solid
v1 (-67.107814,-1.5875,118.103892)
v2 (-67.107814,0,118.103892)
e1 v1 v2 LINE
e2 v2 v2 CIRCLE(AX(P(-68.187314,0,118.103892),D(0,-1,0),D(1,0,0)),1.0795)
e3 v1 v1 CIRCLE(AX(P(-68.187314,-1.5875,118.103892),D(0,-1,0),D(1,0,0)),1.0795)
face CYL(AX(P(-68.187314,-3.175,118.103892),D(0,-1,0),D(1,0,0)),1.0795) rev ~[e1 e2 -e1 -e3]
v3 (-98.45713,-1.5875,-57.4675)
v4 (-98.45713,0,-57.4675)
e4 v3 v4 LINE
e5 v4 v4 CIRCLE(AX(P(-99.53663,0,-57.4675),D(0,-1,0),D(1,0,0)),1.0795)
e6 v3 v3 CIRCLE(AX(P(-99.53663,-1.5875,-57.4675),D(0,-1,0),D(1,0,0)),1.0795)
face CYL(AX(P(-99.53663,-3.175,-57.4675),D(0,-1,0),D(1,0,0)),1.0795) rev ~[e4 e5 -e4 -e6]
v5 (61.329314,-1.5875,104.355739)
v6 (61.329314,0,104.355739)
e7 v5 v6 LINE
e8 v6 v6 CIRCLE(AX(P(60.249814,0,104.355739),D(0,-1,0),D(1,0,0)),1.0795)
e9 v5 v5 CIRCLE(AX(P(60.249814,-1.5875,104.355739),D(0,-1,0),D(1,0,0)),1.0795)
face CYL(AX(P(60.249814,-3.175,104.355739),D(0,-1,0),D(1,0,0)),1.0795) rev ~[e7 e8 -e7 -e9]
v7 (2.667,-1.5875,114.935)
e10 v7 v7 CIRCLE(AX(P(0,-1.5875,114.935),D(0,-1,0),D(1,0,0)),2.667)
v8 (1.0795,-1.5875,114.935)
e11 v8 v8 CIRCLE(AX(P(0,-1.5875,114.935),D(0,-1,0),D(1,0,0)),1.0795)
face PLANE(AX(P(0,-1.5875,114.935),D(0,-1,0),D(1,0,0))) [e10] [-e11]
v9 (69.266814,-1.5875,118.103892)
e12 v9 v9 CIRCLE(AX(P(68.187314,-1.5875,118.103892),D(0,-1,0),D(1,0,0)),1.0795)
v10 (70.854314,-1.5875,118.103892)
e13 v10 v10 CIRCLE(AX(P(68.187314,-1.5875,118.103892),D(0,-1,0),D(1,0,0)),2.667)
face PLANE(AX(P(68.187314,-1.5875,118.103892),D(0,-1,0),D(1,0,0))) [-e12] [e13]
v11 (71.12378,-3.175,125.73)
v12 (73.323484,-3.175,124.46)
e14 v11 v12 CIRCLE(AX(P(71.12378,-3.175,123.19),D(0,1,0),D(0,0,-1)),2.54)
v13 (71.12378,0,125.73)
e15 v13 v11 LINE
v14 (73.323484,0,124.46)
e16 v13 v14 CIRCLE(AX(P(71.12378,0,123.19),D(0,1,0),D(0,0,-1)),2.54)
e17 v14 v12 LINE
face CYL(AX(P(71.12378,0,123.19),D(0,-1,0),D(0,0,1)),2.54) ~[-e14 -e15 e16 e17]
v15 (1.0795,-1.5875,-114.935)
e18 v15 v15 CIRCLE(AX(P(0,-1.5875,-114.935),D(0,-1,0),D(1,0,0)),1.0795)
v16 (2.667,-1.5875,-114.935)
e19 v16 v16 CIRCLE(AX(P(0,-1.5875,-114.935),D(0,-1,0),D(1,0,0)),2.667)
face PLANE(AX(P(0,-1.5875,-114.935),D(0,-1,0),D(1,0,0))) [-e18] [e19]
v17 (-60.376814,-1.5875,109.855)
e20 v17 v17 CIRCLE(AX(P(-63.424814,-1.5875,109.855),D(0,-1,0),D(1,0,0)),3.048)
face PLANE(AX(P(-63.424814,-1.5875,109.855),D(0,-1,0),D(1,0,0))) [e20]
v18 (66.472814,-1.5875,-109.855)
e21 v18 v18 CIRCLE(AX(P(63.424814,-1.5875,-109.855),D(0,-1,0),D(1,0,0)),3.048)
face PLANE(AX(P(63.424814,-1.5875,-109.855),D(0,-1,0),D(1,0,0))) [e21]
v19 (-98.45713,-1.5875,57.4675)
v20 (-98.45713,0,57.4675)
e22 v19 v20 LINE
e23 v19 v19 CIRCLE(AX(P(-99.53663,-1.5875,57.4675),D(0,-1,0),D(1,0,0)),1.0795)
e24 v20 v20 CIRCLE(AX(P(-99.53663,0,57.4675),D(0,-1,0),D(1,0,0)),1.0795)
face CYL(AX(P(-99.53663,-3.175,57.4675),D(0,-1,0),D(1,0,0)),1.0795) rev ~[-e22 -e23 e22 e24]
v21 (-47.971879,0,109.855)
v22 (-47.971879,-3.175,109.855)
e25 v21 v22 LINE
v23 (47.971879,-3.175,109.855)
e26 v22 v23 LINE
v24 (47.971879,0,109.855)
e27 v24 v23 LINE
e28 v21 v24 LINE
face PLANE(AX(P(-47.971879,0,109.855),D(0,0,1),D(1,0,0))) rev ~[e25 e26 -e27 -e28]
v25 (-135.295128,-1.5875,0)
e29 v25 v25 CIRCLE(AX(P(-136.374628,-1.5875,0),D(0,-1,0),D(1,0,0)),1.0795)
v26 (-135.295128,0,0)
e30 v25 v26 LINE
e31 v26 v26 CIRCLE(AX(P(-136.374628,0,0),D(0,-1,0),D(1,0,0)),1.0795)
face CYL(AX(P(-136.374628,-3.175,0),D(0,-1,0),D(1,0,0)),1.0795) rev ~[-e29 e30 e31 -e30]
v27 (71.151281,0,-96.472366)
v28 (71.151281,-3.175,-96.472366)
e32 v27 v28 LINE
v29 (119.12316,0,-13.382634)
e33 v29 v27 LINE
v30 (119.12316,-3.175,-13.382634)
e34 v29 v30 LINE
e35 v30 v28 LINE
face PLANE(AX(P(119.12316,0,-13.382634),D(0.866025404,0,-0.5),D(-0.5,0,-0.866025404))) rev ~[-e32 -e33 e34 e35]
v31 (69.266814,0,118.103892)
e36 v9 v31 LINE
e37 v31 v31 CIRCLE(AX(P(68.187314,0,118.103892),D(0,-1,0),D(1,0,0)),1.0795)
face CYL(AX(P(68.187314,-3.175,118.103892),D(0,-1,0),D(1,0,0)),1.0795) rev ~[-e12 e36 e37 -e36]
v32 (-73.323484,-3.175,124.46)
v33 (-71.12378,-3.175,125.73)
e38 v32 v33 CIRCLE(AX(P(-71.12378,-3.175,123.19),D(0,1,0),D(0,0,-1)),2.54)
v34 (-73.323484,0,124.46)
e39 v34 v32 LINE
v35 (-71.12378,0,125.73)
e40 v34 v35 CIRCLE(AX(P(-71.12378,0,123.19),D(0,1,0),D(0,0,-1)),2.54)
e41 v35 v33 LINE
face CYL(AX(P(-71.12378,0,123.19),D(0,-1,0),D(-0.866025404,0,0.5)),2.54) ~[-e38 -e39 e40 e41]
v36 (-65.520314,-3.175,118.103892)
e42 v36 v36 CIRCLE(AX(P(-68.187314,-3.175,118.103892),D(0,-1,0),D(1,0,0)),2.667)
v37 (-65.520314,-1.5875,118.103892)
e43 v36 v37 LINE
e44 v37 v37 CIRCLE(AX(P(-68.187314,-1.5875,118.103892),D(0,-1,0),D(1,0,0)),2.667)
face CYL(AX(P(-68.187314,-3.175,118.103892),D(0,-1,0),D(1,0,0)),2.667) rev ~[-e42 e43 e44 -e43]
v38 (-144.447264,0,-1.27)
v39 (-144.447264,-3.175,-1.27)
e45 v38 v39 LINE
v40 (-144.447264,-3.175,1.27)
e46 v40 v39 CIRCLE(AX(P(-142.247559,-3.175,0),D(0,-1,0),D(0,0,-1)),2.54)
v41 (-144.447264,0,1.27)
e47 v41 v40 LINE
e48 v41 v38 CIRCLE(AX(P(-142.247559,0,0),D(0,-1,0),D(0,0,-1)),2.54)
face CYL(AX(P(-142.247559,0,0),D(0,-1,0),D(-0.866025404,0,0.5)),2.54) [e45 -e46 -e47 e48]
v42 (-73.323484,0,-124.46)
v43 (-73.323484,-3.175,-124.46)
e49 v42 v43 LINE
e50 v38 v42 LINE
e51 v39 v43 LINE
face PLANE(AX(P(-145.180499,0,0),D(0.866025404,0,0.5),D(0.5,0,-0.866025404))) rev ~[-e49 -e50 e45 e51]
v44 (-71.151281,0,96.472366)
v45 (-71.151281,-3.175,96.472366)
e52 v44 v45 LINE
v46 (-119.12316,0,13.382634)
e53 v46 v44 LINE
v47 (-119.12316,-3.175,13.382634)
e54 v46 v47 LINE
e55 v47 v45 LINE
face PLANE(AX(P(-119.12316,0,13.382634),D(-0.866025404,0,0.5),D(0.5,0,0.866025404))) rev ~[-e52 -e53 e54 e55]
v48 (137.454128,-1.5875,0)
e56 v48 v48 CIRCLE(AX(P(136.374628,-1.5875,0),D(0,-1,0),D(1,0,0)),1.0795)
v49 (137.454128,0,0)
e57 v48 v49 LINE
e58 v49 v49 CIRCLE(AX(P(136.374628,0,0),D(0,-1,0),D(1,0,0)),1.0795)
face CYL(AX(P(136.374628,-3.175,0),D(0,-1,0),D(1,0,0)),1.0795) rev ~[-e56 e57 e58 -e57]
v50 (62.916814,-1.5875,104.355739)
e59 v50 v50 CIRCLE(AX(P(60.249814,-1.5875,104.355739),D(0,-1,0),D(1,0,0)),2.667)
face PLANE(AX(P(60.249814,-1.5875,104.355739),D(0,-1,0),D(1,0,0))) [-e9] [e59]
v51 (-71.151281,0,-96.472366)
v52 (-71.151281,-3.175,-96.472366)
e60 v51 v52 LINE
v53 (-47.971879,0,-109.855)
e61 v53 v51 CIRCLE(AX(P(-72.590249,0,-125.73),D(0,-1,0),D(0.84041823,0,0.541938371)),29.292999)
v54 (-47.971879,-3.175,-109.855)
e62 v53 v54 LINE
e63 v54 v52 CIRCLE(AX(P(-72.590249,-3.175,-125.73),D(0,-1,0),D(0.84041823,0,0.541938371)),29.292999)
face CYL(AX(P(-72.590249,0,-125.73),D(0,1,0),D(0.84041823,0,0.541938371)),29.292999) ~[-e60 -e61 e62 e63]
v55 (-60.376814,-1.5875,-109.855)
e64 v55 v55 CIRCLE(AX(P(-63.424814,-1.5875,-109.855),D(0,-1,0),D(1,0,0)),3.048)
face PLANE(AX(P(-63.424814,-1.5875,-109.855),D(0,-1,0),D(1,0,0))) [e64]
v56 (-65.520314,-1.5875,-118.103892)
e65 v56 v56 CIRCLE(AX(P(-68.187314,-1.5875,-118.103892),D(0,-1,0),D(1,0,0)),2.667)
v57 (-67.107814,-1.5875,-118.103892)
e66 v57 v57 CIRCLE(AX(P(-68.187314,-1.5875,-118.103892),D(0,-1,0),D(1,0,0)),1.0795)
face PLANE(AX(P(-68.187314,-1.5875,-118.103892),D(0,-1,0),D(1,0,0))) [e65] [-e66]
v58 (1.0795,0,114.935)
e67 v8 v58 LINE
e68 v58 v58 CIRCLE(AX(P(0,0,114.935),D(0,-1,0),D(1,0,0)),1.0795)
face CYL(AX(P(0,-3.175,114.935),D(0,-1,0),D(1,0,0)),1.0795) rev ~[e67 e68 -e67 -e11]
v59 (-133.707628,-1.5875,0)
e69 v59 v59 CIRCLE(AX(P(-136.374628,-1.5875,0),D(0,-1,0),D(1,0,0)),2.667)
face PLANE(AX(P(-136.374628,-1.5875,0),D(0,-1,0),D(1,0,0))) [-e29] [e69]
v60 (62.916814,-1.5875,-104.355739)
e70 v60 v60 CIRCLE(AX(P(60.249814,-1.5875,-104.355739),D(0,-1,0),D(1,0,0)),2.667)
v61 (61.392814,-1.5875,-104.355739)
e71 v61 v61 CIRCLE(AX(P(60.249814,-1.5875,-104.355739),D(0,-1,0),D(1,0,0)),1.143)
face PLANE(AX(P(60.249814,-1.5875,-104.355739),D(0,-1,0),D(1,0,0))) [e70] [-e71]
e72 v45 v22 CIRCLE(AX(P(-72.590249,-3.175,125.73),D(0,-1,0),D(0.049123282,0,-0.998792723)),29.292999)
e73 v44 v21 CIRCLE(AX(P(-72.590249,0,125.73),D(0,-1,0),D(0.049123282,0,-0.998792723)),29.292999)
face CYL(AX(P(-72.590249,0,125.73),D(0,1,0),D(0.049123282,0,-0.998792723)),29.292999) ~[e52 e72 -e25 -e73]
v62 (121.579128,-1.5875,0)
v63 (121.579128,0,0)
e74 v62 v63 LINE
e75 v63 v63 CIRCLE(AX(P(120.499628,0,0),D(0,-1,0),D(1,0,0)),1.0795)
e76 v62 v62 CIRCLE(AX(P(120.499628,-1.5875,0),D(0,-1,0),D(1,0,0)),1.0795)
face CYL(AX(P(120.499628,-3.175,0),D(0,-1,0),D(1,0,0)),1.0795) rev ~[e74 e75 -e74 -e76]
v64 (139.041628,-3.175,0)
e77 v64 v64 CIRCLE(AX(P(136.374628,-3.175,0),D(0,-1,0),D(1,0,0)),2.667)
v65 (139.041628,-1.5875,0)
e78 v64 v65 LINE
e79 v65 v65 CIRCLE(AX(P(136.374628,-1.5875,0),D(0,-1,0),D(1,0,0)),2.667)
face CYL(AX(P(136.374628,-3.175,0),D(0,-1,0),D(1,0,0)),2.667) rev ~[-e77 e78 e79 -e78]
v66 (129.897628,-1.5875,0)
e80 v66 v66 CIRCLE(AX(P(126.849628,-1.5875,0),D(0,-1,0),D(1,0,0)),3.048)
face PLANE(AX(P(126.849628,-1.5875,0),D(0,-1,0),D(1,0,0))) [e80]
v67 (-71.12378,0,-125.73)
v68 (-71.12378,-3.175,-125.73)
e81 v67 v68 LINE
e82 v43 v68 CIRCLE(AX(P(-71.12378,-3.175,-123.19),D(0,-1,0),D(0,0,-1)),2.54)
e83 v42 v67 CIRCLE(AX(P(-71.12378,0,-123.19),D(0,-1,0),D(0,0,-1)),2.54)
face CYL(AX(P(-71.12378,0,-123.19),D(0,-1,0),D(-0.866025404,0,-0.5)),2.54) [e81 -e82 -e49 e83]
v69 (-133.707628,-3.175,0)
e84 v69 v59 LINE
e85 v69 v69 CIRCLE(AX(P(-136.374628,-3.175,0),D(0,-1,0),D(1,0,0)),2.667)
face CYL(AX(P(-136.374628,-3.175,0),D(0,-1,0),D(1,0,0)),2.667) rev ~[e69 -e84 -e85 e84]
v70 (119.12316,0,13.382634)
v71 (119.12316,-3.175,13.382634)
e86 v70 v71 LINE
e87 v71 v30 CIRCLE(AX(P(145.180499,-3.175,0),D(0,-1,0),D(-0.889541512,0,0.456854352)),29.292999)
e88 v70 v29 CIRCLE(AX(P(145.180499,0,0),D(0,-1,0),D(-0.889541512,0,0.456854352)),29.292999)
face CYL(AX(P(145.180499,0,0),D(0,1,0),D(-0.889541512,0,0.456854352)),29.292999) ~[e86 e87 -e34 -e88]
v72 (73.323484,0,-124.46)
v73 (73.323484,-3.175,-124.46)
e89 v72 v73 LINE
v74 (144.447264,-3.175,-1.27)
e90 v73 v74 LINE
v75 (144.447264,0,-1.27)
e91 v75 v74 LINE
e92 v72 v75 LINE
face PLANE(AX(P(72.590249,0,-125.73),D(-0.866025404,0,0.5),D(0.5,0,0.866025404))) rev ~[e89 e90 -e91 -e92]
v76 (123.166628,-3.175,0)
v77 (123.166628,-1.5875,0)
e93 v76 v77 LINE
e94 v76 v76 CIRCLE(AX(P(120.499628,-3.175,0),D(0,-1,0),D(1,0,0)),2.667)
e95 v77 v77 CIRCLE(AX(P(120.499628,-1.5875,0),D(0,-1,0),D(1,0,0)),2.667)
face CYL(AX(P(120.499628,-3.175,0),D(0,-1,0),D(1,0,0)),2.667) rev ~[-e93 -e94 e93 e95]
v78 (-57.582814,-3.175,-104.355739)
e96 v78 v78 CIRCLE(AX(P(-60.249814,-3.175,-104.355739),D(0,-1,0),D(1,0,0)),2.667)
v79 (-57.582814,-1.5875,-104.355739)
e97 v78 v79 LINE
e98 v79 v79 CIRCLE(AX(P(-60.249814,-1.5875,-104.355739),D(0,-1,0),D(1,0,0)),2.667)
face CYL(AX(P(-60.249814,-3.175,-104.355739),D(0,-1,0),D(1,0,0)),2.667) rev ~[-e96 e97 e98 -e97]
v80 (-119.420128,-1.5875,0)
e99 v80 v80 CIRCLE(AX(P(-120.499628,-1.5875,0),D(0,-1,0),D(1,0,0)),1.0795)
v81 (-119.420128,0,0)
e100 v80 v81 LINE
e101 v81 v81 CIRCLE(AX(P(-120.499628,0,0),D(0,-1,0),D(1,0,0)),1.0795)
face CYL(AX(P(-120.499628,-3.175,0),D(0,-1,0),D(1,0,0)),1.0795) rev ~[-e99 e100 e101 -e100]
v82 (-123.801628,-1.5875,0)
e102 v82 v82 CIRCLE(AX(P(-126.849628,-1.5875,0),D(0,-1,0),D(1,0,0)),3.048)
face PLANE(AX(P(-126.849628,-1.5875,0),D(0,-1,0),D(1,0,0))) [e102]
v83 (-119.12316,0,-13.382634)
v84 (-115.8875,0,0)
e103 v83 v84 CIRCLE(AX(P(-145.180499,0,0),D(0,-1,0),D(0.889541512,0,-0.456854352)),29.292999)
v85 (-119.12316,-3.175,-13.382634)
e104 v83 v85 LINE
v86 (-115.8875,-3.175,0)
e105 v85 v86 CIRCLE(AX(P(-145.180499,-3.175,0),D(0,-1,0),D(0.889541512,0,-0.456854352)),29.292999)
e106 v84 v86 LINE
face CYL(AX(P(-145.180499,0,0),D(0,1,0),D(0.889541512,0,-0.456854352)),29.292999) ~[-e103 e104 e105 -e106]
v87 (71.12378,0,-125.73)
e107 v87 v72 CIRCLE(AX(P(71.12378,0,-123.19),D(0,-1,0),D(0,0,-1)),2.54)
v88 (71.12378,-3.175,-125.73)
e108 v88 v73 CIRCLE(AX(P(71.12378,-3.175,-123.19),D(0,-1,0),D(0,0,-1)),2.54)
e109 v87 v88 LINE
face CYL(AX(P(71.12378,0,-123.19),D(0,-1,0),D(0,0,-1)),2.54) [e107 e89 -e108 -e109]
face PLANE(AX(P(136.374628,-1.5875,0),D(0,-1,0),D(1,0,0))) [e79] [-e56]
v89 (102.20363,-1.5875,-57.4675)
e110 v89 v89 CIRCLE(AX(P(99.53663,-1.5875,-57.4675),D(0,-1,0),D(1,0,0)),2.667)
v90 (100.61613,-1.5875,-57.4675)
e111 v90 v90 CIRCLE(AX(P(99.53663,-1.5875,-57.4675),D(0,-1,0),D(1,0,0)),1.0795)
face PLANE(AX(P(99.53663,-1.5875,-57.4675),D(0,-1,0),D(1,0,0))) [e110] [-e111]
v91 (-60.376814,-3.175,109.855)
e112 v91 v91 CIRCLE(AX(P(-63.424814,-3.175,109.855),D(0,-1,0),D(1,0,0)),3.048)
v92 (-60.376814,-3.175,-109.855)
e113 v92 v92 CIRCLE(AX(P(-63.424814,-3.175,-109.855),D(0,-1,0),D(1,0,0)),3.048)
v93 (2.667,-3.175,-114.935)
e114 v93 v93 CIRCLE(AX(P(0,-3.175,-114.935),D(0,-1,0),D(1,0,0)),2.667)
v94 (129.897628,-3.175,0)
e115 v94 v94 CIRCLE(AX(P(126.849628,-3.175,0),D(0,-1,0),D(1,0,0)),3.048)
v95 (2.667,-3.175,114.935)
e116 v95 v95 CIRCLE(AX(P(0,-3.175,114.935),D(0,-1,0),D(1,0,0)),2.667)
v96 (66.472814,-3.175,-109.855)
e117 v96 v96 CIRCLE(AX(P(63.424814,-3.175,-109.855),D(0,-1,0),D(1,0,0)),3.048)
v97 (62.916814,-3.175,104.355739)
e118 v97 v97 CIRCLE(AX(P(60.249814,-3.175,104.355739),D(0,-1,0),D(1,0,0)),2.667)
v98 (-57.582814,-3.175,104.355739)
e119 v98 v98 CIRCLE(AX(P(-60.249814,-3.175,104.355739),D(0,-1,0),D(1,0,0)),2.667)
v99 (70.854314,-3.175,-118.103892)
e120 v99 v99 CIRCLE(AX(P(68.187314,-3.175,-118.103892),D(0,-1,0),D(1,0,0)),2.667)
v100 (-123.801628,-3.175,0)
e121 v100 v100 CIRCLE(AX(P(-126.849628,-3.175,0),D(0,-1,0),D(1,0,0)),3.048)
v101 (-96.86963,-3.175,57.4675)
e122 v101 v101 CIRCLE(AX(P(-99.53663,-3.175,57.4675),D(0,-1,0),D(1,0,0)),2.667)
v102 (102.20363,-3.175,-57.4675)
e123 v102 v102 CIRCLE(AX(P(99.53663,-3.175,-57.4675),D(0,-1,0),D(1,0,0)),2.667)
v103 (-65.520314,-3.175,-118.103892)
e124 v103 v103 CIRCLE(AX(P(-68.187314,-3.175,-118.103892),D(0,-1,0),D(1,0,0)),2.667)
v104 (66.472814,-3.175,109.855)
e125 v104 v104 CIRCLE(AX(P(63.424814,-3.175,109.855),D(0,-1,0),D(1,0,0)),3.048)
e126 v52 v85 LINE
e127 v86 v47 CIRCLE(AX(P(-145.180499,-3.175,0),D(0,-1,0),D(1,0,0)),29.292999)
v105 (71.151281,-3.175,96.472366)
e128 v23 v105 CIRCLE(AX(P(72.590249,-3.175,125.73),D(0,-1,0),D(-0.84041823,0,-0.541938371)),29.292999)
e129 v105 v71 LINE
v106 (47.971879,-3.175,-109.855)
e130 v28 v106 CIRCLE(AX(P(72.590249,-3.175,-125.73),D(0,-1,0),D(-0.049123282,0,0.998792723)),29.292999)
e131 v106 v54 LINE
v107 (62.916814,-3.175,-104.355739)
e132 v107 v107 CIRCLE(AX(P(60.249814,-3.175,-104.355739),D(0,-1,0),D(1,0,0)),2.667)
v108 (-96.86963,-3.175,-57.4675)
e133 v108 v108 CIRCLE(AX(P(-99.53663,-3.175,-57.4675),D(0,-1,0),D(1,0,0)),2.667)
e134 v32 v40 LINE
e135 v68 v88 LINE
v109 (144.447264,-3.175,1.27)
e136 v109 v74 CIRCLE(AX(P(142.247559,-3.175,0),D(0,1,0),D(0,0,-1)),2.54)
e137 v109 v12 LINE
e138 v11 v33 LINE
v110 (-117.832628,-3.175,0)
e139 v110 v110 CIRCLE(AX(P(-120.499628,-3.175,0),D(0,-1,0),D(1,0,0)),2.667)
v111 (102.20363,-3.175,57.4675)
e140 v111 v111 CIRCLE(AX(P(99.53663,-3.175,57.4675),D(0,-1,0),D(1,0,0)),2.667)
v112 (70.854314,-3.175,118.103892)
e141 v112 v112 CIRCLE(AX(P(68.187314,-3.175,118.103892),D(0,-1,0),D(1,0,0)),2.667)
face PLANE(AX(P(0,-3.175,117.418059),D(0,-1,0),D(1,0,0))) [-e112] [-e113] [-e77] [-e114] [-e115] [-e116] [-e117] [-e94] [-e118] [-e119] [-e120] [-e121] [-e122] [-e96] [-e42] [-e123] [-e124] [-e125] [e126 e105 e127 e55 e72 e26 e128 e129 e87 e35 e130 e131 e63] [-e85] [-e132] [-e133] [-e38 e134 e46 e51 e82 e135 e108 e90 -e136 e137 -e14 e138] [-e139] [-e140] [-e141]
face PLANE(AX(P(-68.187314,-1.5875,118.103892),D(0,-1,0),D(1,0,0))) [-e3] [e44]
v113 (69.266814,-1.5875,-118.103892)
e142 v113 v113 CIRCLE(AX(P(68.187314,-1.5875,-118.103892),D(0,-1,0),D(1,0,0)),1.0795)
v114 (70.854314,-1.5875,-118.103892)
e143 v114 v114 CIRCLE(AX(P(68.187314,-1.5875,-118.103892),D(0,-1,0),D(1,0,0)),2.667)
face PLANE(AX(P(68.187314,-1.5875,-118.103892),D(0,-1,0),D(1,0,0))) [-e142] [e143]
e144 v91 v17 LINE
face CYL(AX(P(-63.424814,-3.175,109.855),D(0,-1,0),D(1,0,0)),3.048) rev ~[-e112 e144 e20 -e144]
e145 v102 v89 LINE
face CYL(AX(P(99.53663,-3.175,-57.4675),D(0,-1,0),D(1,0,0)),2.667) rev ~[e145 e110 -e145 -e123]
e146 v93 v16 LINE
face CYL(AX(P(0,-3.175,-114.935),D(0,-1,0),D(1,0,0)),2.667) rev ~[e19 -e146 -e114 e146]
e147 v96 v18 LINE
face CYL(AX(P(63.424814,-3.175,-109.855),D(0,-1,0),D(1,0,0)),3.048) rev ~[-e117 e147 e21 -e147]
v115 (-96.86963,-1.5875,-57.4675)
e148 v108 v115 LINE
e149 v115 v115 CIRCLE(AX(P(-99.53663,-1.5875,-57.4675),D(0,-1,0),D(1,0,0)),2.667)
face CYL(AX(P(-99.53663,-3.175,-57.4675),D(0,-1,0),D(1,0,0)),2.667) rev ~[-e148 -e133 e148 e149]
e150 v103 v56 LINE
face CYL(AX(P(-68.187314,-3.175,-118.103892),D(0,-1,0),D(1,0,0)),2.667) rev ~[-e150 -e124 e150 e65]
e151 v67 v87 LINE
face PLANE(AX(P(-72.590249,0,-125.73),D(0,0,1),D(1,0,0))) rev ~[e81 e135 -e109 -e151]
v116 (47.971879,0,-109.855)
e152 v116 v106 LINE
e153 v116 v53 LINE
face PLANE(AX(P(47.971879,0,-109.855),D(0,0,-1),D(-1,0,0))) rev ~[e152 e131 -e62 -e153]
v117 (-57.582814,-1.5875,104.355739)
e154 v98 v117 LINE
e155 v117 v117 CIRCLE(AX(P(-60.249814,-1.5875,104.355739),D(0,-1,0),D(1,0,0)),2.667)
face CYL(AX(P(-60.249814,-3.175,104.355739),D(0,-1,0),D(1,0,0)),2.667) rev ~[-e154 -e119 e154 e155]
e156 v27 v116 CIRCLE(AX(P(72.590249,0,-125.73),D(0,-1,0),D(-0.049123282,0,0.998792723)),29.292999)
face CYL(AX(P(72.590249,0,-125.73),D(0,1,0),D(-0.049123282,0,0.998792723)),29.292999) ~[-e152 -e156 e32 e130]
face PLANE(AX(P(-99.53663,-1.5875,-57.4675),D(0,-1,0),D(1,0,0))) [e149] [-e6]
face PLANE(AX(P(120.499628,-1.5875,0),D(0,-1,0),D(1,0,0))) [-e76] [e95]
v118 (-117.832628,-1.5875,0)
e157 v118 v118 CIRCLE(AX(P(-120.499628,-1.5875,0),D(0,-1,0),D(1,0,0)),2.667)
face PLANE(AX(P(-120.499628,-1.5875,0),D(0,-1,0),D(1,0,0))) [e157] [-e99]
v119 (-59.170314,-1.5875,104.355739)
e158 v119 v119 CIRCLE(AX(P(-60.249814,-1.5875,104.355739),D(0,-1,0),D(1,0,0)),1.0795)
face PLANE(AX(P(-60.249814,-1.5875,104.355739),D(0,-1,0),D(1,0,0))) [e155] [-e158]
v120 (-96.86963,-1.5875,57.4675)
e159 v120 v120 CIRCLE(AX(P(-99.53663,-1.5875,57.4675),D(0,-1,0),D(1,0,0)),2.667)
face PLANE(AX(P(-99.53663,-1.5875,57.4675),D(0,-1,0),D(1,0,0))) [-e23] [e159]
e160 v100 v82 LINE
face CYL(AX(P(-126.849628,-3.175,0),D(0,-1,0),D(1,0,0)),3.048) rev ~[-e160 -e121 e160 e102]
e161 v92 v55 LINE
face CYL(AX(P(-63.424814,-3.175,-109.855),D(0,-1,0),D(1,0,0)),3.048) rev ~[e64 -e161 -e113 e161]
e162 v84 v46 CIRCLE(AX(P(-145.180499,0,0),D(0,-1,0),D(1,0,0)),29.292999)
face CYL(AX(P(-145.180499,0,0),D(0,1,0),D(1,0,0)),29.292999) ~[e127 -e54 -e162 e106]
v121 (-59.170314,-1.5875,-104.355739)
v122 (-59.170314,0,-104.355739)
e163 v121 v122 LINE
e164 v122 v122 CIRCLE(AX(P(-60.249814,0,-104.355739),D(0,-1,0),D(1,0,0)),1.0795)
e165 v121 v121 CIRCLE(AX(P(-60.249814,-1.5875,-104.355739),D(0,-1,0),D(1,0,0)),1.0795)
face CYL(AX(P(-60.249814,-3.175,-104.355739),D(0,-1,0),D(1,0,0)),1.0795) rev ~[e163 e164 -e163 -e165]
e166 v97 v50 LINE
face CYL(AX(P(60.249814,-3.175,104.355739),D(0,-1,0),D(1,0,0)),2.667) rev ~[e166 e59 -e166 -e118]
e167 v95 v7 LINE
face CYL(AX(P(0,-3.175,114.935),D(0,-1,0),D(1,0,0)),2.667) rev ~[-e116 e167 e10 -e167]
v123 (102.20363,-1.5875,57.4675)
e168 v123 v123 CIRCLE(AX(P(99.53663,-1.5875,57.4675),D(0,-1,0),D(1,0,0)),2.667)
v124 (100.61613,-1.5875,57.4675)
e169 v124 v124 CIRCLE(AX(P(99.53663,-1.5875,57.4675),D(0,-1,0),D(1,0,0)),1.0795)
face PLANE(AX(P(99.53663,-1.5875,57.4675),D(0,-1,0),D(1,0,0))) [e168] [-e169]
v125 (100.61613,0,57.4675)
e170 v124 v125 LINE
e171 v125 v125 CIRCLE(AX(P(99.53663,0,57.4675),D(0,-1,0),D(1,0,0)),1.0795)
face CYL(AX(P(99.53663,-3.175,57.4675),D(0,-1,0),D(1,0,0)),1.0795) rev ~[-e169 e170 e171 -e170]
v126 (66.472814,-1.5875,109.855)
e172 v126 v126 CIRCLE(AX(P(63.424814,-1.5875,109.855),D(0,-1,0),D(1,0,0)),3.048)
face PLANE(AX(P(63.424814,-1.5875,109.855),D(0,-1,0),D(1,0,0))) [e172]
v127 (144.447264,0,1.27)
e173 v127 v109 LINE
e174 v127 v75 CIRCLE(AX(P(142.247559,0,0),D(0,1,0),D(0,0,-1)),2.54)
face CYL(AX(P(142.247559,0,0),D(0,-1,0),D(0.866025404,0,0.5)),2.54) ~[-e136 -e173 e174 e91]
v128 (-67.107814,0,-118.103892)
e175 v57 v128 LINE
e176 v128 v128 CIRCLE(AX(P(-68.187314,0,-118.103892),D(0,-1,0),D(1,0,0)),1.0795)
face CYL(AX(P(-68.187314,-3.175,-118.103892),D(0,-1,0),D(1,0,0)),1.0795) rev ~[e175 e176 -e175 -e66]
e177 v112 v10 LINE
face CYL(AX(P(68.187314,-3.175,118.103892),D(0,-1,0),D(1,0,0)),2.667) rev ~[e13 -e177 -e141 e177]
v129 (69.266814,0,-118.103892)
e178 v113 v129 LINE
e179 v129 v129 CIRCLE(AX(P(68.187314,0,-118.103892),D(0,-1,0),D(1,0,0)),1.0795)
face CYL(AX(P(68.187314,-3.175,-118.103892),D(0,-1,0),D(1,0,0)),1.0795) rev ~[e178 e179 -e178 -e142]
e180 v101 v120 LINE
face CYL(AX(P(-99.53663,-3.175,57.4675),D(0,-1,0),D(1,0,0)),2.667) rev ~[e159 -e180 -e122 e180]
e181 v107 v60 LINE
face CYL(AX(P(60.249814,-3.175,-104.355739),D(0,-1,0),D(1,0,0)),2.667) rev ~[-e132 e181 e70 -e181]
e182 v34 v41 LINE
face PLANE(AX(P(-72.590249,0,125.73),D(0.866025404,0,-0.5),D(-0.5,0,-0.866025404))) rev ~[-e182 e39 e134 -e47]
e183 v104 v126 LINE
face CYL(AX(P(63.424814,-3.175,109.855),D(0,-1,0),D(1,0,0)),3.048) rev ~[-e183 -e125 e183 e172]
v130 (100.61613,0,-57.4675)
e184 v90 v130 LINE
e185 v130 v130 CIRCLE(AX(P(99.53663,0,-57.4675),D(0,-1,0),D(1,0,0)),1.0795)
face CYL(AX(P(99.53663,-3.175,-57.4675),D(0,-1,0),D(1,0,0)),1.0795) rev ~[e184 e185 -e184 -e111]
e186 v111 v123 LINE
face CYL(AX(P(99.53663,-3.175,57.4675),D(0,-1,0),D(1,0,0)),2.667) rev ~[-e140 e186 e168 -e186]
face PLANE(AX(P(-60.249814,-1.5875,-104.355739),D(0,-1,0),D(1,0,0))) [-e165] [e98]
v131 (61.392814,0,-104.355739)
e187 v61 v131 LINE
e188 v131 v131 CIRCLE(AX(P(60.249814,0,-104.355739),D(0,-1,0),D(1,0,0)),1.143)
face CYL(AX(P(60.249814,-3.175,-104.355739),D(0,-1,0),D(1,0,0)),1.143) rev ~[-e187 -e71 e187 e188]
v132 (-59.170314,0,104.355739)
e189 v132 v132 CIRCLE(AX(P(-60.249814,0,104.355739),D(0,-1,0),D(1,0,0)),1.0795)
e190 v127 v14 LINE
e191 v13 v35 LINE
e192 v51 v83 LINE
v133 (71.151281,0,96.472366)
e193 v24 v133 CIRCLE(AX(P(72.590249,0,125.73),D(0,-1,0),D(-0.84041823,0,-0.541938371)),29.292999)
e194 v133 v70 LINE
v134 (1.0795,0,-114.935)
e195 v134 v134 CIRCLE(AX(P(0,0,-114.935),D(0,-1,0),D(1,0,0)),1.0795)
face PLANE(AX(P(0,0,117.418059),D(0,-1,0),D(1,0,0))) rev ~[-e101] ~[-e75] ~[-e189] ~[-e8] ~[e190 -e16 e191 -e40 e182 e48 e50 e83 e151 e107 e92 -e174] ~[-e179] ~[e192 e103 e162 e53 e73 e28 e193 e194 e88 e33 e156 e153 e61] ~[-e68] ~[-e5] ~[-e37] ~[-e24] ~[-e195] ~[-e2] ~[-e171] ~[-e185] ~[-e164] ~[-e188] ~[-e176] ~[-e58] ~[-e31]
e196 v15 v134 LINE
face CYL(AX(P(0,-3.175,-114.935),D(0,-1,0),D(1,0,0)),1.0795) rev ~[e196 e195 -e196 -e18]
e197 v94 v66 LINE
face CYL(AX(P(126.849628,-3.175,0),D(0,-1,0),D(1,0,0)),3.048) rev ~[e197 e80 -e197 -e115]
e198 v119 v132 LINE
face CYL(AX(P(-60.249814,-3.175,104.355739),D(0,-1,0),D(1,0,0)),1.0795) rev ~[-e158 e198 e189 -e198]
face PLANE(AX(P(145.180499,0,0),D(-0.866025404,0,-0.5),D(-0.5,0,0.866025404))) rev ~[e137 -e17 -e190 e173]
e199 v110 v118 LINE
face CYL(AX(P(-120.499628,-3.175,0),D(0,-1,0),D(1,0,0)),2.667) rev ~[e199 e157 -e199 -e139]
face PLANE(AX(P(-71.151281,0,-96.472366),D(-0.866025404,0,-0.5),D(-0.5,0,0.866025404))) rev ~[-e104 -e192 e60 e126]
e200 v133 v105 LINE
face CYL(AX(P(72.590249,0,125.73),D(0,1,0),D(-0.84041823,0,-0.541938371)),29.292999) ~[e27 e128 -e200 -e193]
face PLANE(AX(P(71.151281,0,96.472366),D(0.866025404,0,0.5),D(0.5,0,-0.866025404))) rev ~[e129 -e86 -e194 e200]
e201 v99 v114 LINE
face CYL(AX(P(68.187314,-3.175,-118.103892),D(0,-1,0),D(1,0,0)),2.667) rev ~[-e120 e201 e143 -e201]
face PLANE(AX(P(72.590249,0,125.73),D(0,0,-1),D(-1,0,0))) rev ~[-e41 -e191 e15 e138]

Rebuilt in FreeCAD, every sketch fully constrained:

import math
import FreeCAD as App
import Part
import Sketcher
Q = App.Units.Quantity


def edges_at(feature, points):
    """Names of the edges that pass closest to the given points."""
    edges = feature.Shape.Edges
    near = lambda p: min(range(len(edges)), key=lambda i: edges[i].distToShape(Part.Vertex(*p))[0])
    return sorted({f"Edge{near(p) + 1}" for p in points})

doc = App.newDocument("Part")
params = doc.addObject("Spreadsheet::Sheet", "Params")
for row, (alias, value) in enumerate([
    ("pad1_length", "0.125 in"),
    ("sketch2_diameter", "0.24 in"),
    ("pocket1_length", "0.0625 in"),
    ("sketch3_diameter", "0.21 in"),
    ("sketch3_diameter2", "0.09 in"),
    ("sketch3_diameter3", "0.085 in"),
    ("pocket2_length", "0.0625 in"),
    ("sketch4_diameter", "0.09 in"),
    ("sketch4_diameter2", "0.085 in"),
    ("fillet_radius", "0.1 in"),
], start=1):
    params.set(f"A{row}", alias)
    params.set(f"B{row}", "=" + value)
    params.setAlias(f"B{row}", alias)

body = doc.addObject("PartDesign::Body", "Body")

# Sketch on XZ plane
sketch1 = body.newObject("Sketcher::SketchObject", "Sketch")
sketch1.AttachmentSupport = (doc.getObject("XZ_Plane"), [""])
sketch1.MapMode = "FlatFace"
sketch1.addGeometry([
    Part.LineSegment(App.Vector(-73, 126, 0), App.Vector(-145, 0, 0)),  # 0
    Part.LineSegment(App.Vector(-145, 0, 0), App.Vector(-73, -126, 0)),  # 1
    Part.LineSegment(App.Vector(-73, -126, 0), App.Vector(73, -126, 0)),  # 2
    Part.LineSegment(App.Vector(73, -126, 0), App.Vector(145, 0, 0)),  # 3
    Part.LineSegment(App.Vector(145, 0, 0), App.Vector(73, 126, 0)),  # 4
    Part.LineSegment(App.Vector(73, 126, 0), App.Vector(-73, 126, 0)),  # 5
    Part.ArcOfCircle(Part.Circle(App.Vector(-145, 0, 0), App.Vector(0, 0, 1), 29), math.radians(-27), math.radians(0)),  # 6
    Part.ArcOfCircle(Part.Circle(App.Vector(-145, 0, 0), App.Vector(0, 0, 1), 29), math.radians(0), math.radians(27)),  # 7
    Part.LineSegment(App.Vector(-119, 13, 0), App.Vector(-71, 96, 0)),  # 8
    Part.ArcOfCircle(Part.Circle(App.Vector(-73, 126, 0), App.Vector(0, 0, 1), 29), math.radians(-87), math.radians(-33)),  # 9
    Part.LineSegment(App.Vector(-48, 110, 0), App.Vector(48, 110, 0)),  # 10
    Part.ArcOfCircle(Part.Circle(App.Vector(73, 126, 0), App.Vector(0, 0, 1), 29), math.radians(-147), math.radians(-93)),  # 11
    Part.LineSegment(App.Vector(71, 96, 0), App.Vector(119, 13, 0)),  # 12
    Part.ArcOfCircle(Part.Circle(App.Vector(145, 0, 0), App.Vector(0, 0, 1), 29), math.radians(153), math.radians(207)),  # 13
    Part.LineSegment(App.Vector(119, -13, 0), App.Vector(71, -96, 0)),  # 14
    Part.ArcOfCircle(Part.Circle(App.Vector(73, -126, 0), App.Vector(0, 0, 1), 29), math.radians(93), math.radians(147)),  # 15
    Part.LineSegment(App.Vector(48, -110, 0), App.Vector(-48, -110, 0)),  # 16
    Part.ArcOfCircle(Part.Circle(App.Vector(-73, -126, 0), App.Vector(0, 0, 1), 29), math.radians(33), math.radians(87)),  # 17
    Part.LineSegment(App.Vector(-71, -96, 0), App.Vector(-119, -13, 0)),  # 18
], False)
sketch1.addConstraint([
    Sketcher.Constraint("Coincident", 0, 2, 1, 1),
    Sketcher.Constraint("Coincident", 1, 2, 2, 1),
    Sketcher.Constraint("Coincident", 2, 2, 3, 1),
    Sketcher.Constraint("Coincident", 3, 2, 4, 1),
    Sketcher.Constraint("Coincident", 4, 2, 5, 1),
    Sketcher.Constraint("Coincident", 5, 2, 0, 1),
    Sketcher.Constraint("Tangent", 6, 2, 7, 1),
    Sketcher.Constraint("Coincident", 7, 2, 8, 1),
    Sketcher.Constraint("Coincident", 8, 2, 9, 1),
    Sketcher.Constraint("Coincident", 9, 2, 10, 1),
    Sketcher.Constraint("Coincident", 10, 2, 11, 1),
    Sketcher.Constraint("Coincident", 11, 2, 12, 1),
    Sketcher.Constraint("Coincident", 12, 2, 13, 1),
    Sketcher.Constraint("Coincident", 13, 2, 14, 1),
    Sketcher.Constraint("Coincident", 14, 2, 15, 1),
    Sketcher.Constraint("Coincident", 15, 2, 16, 1),
    Sketcher.Constraint("Coincident", 16, 2, 17, 1),
    Sketcher.Constraint("Coincident", 17, 2, 18, 1),
    Sketcher.Constraint("Coincident", 18, 2, 6, 1),
    Sketcher.Constraint("Horizontal", 2),
    Sketcher.Constraint("Horizontal", 5),
    Sketcher.Constraint("Horizontal", 10),
    Sketcher.Constraint("Horizontal", 16),
    Sketcher.Constraint("Coincident", 0, 2, 6, 3),
    Sketcher.Constraint("Coincident", 1, 2, 17, 3),
    Sketcher.Constraint("Coincident", 2, 2, 15, 3),
    Sketcher.Constraint("Coincident", 3, 2, 13, 3),
    Sketcher.Constraint("Coincident", 4, 2, 11, 3),
    Sketcher.Constraint("Coincident", 5, 2, 9, 3),
    Sketcher.Constraint("Equal", 6, 7),
    Sketcher.Constraint("Equal", 7, 9),
    Sketcher.Constraint("Equal", 9, 11),
    Sketcher.Constraint("Equal", 11, 13),
    Sketcher.Constraint("Equal", 13, 15),
    Sketcher.Constraint("Equal", 15, 17),
    Sketcher.Constraint("Symmetric", 6, 3, 13, 3, -1, 1),
    Sketcher.Constraint("Symmetric", 9, 3, 15, 3, -1, 1),
    Sketcher.Constraint("Symmetric", 10, 2, 16, 2, -1, 1),
    Sketcher.Constraint("Symmetric", 8, 2, 11, 2, -2),
    Sketcher.Constraint("Symmetric", 7, 2, 12, 2, -2),
    Sketcher.Constraint("PointOnObject", 6, 2, -1),
    Sketcher.Constraint("Parallel", 3, 8),
    Sketcher.Constraint("Parallel", 8, 14),
    Sketcher.Constraint("Parallel", 12, 18),
    Sketcher.Constraint("Horizontal", 14, 2, 17, 2),
    Sketcher.Constraint("Vertical", 12, 2, 13, 2),
    Sketcher.Constraint("Angle", 0, Q("-120 deg")),
    Sketcher.Constraint("DistanceY", 15, 3, 11, 3, Q("9.9 in")),
    Sketcher.Constraint("Radius", 6, 29.292999),
    Sketcher.Constraint("DistanceX", 6, 2, -1, 1, Q("4.5625 in")),
    Sketcher.Constraint("DistanceY", -1, 1, 9, 2, Q("4.325 in")),
    Sketcher.Constraint("DistanceY", 13, 2, 11, 2, Q("4.325 in")),
])
pad1 = body.newObject("PartDesign::Pad", "Pad")
pad1.Profile = sketch1
pad1.setExpression("Length", "Params.pad1_length")

# Sketch on XZ plane
sketch2 = body.newObject("Sketcher::SketchObject", "Sketch001")
sketch2.AttachmentSupport = (doc.getObject("XZ_Plane"), [""])
sketch2.MapMode = "FlatFace"
sketch2.AttachmentOffset = App.Placement(App.Vector(0, 0, 0.125 * 25.4), App.Rotation())
sketch2.addGeometry([
    Part.Circle(App.Vector(-63.4, 109.9, 0), App.Vector(0, 0, 1), 3),  # 0
    Part.Circle(App.Vector(63.4, 109.9, 0), App.Vector(0, 0, 1), 3),  # 1
    Part.Circle(App.Vector(-126.8, 0, 0), App.Vector(0, 0, 1), 3),  # 2
    Part.Circle(App.Vector(-63.4, -109.9, 0), App.Vector(0, 0, 1), 3),  # 3
    Part.Circle(App.Vector(63.4, -109.9, 0), App.Vector(0, 0, 1), 3),  # 4
    Part.Circle(App.Vector(126.8, 0, 0), App.Vector(0, 0, 1), 3),  # 5
], False)
sketch2.addConstraint([
    Sketcher.Constraint("Equal", 0, 1),
    Sketcher.Constraint("Equal", 1, 2),
    Sketcher.Constraint("Equal", 2, 3),
    Sketcher.Constraint("Equal", 3, 4),
    Sketcher.Constraint("Equal", 4, 5),
    Sketcher.Constraint("Symmetric", 1, 3, 3, 3, -1, 1),
    Sketcher.Constraint("Symmetric", 0, 3, 4, 3, -1, 1),
    Sketcher.Constraint("Symmetric", 2, 3, 5, 3, -1, 1),
    Sketcher.Constraint("Symmetric", 0, 3, 1, 3, -2),
    Sketcher.Constraint("PointOnObject", 2, 3, -1),
    Sketcher.Constraint("Diameter", 0, Q("0.24 in")),
    Sketcher.Constraint("DistanceY", 3, 3, 0, 3, Q("8.65 in")),
    Sketcher.Constraint("DistanceX", 2, 3, 1, 3, 190.274441),
    Sketcher.Constraint("DistanceX", 0, 3, -1, 1, 63.424814),
])
sketch2.setExpression("Constraints[10]", "Params.sketch2_diameter")
pocket1 = body.newObject("PartDesign::Pocket", "Pocket")
pocket1.Profile = sketch2
pocket1.setExpression("Length", "Params.pocket1_length")

# Sketch on XZ plane
sketch3 = body.newObject("Sketcher::SketchObject", "Sketch002")
sketch3.AttachmentSupport = (doc.getObject("XZ_Plane"), [""])
sketch3.MapMode = "FlatFace"
sketch3.AttachmentOffset = App.Placement(App.Vector(0, 0, 0.125 * 25.4), App.Rotation())
sketch3.addGeometry([
    Part.Circle(App.Vector(-120.5, 0, 0), App.Vector(0, 0, 1), 2.7),  # 0
    Part.Circle(App.Vector(-120.5, 0, 0), App.Vector(0, 0, 1), 1.1),  # 1
    Part.Circle(App.Vector(-60.2, 104.4, 0), App.Vector(0, 0, 1), 2.7),  # 2
    Part.Circle(App.Vector(-60.2, 104.4, 0), App.Vector(0, 0, 1), 1.1),  # 3
    Part.Circle(App.Vector(60.2, 104.4, 0), App.Vector(0, 0, 1), 2.7),  # 4
    Part.Circle(App.Vector(60.2, 104.4, 0), App.Vector(0, 0, 1), 1.1),  # 5
    Part.Circle(App.Vector(120.5, 0, 0), App.Vector(0, 0, 1), 2.7),  # 6
    Part.Circle(App.Vector(120.5, 0, 0), App.Vector(0, 0, 1), 1.1),  # 7
    Part.Circle(App.Vector(60.2, -104.4, 0), App.Vector(0, 0, 1), 2.7),  # 8
    Part.Circle(App.Vector(60.2, -104.4, 0), App.Vector(0, 0, 1), 1.1),  # 9
    Part.Circle(App.Vector(-60.2, -104.4, 0), App.Vector(0, 0, 1), 2.7),  # 10
    Part.Circle(App.Vector(-60.2, -104.4, 0), App.Vector(0, 0, 1), 1.1),  # 11
    Part.Circle(App.Vector(-68.2, -118.1, 0), App.Vector(0, 0, 1), 2.7),  # 12
    Part.Circle(App.Vector(-68.2, -118.1, 0), App.Vector(0, 0, 1), 1.1),  # 13
    Part.Circle(App.Vector(68.2, -118.1, 0), App.Vector(0, 0, 1), 2.7),  # 14
    Part.Circle(App.Vector(68.2, -118.1, 0), App.Vector(0, 0, 1), 1.1),  # 15
    Part.Circle(App.Vector(136.4, 0, 0), App.Vector(0, 0, 1), 2.7),  # 16
    Part.Circle(App.Vector(136.4, 0, 0), App.Vector(0, 0, 1), 1.1),  # 17
    Part.Circle(App.Vector(68.2, 118.1, 0), App.Vector(0, 0, 1), 2.7),  # 18
    Part.Circle(App.Vector(68.2, 118.1, 0), App.Vector(0, 0, 1), 1.1),  # 19
    Part.Circle(App.Vector(-68.2, 118.1, 0), App.Vector(0, 0, 1), 2.7),  # 20
    Part.Circle(App.Vector(-68.2, 118.1, 0), App.Vector(0, 0, 1), 1.1),  # 21
    Part.Circle(App.Vector(-136.4, 0, 0), App.Vector(0, 0, 1), 2.7),  # 22
    Part.Circle(App.Vector(-136.4, 0, 0), App.Vector(0, 0, 1), 1.1),  # 23
    Part.Circle(App.Vector(-99.5, 57.5, 0), App.Vector(0, 0, 1), 2.7),  # 24
    Part.Circle(App.Vector(-99.5, 57.5, 0), App.Vector(0, 0, 1), 1.1),  # 25
    Part.Circle(App.Vector(0, 114.9, 0), App.Vector(0, 0, 1), 2.7),  # 26
    Part.Circle(App.Vector(0, 114.9, 0), App.Vector(0, 0, 1), 1.1),  # 27
    Part.Circle(App.Vector(99.5, 57.5, 0), App.Vector(0, 0, 1), 2.7),  # 28
    Part.Circle(App.Vector(99.5, 57.5, 0), App.Vector(0, 0, 1), 1.1),  # 29
    Part.Circle(App.Vector(99.5, -57.5, 0), App.Vector(0, 0, 1), 2.7),  # 30
    Part.Circle(App.Vector(99.5, -57.5, 0), App.Vector(0, 0, 1), 1.1),  # 31
    Part.Circle(App.Vector(0, -114.9, 0), App.Vector(0, 0, 1), 2.7),  # 32
    Part.Circle(App.Vector(0, -114.9, 0), App.Vector(0, 0, 1), 1.1),  # 33
    Part.Circle(App.Vector(-99.5, -57.5, 0), App.Vector(0, 0, 1), 2.7),  # 34
    Part.Circle(App.Vector(-99.5, -57.5, 0), App.Vector(0, 0, 1), 1.1),  # 35
], False)
sketch3.addConstraint([
    Sketcher.Constraint("Coincident", 1, 3, 0, 3),
    Sketcher.Constraint("Coincident", 3, 3, 2, 3),
    Sketcher.Constraint("Coincident", 5, 3, 4, 3),
    Sketcher.Constraint("Coincident", 7, 3, 6, 3),
    Sketcher.Constraint("Coincident", 9, 3, 8, 3),
    Sketcher.Constraint("Coincident", 11, 3, 10, 3),
    Sketcher.Constraint("Coincident", 13, 3, 12, 3),
    Sketcher.Constraint("Coincident", 15, 3, 14, 3),
    Sketcher.Constraint("Coincident", 17, 3, 16, 3),
    Sketcher.Constraint("Coincident", 19, 3, 18, 3),
    Sketcher.Constraint("Coincident", 21, 3, 20, 3),
    Sketcher.Constraint("Coincident", 23, 3, 22, 3),
    Sketcher.Constraint("Coincident", 25, 3, 24, 3),
    Sketcher.Constraint("Coincident", 27, 3, 26, 3),
    Sketcher.Constraint("Coincident", 29, 3, 28, 3),
    Sketcher.Constraint("Coincident", 31, 3, 30, 3),
    Sketcher.Constraint("Coincident", 33, 3, 32, 3),
    Sketcher.Constraint("Coincident", 35, 3, 34, 3),
    Sketcher.Constraint("Equal", 0, 2),
    Sketcher.Constraint("Equal", 1, 3),
    Sketcher.Constraint("Equal", 2, 4),
    Sketcher.Constraint("Equal", 3, 5),
    Sketcher.Constraint("Equal", 4, 6),
    Sketcher.Constraint("Equal", 5, 7),
    Sketcher.Constraint("Equal", 6, 8),
    Sketcher.Constraint("Equal", 8, 10),
    Sketcher.Constraint("Equal", 7, 11),
    Sketcher.Constraint("Equal", 10, 12),
    Sketcher.Constraint("Equal", 11, 13),
    Sketcher.Constraint("Equal", 12, 14),
    Sketcher.Constraint("Equal", 13, 15),
    Sketcher.Constraint("Equal", 14, 16),
    Sketcher.Constraint("Equal", 15, 17),
    Sketcher.Constraint("Equal", 16, 18),
    Sketcher.Constraint("Equal", 17, 19),
    Sketcher.Constraint("Equal", 18, 20),
    Sketcher.Constraint("Equal", 19, 21),
    Sketcher.Constraint("Equal", 20, 22),
    Sketcher.Constraint("Equal", 21, 23),
    Sketcher.Constraint("Equal", 22, 24),
    Sketcher.Constraint("Equal", 23, 25),
    Sketcher.Constraint("Equal", 24, 26),
    Sketcher.Constraint("Equal", 25, 27),
    Sketcher.Constraint("Equal", 26, 28),
    Sketcher.Constraint("Equal", 27, 29),
    Sketcher.Constraint("Equal", 28, 30),
    Sketcher.Constraint("Equal", 29, 31),
    Sketcher.Constraint("Equal", 30, 32),
    Sketcher.Constraint("Equal", 31, 33),
    Sketcher.Constraint("Equal", 32, 34),
    Sketcher.Constraint("Equal", 33, 35),
    Sketcher.Constraint("Symmetric", 0, 3, 6, 3, -1, 1),
    Sketcher.Constraint("Symmetric", 2, 3, 8, 3, -1, 1),
    Sketcher.Constraint("Symmetric", 4, 3, 10, 3, -1, 1),
    Sketcher.Constraint("Symmetric", 12, 3, 18, 3, -1, 1),
    Sketcher.Constraint("Symmetric", 14, 3, 20, 3, -1, 1),
    Sketcher.Constraint("Symmetric", 16, 3, 22, 3, -1, 1),
    Sketcher.Constraint("Symmetric", 24, 3, 30, 3, -1, 1),
    Sketcher.Constraint("Symmetric", 26, 3, 32, 3, -1, 1),
    Sketcher.Constraint("Symmetric", 28, 3, 34, 3, -1, 1),
    Sketcher.Constraint("Symmetric", 2, 3, 4, 3, -2),
    Sketcher.Constraint("Symmetric", 12, 3, 14, 3, -2),
    Sketcher.Constraint("Symmetric", 24, 3, 28, 3, -2),
    Sketcher.Constraint("PointOnObject", 0, 3, -1),
    Sketcher.Constraint("PointOnObject", 16, 3, -1),
    Sketcher.Constraint("PointOnObject", 26, 3, -2),
    Sketcher.Constraint("Diameter", 0, Q("0.21 in")),
    Sketcher.Constraint("Diameter", 9, Q("0.09 in")),
    Sketcher.Constraint("Diameter", 1, Q("0.085 in")),
    Sketcher.Constraint("DistanceY", -1, 1, 26, 3, Q("4.525 in")),
    Sketcher.Constraint("DistanceX", 12, 3, 10, 3, Q("0.3125 in")),
    Sketcher.Constraint("DistanceX", 6, 3, 16, 3, Q("0.625 in")),
    Sketcher.Constraint("DistanceY", -1, 1, 24, 3, Q("2.2625 in")),
    Sketcher.Constraint("DistanceY", -1, 1, 2, 3, 104.355739),
    Sketcher.Constraint("DistanceY", 12, 3, -1, 1, 118.103892),
    Sketcher.Constraint("DistanceX", 24, 3, -1, 1, 99.53663),
    Sketcher.Constraint("DistanceX", 0, 3, 4, 3, 180.749441),
    Sketcher.Constraint("DistanceX", 0, 3, -1, 1, 120.499628),
])
sketch3.setExpression("Constraints[66]", "Params.sketch3_diameter")
sketch3.setExpression("Constraints[67]", "Params.sketch3_diameter2")
sketch3.setExpression("Constraints[68]", "Params.sketch3_diameter3")
pocket2 = body.newObject("PartDesign::Pocket", "Pocket001")
pocket2.Profile = sketch3
pocket2.setExpression("Length", "Params.pocket2_length")

# Sketch on XZ plane
sketch4 = body.newObject("Sketcher::SketchObject", "Sketch003")
sketch4.AttachmentSupport = (doc.getObject("XZ_Plane"), [""])
sketch4.MapMode = "FlatFace"
sketch4.AttachmentOffset = App.Placement(App.Vector(0, 0, 0.125 * 25.4), App.Rotation())
sketch4.addGeometry([
    Part.Circle(App.Vector(-60.2, -104.4, 0), App.Vector(0, 0, 1), 1.1),  # 0
    Part.Circle(App.Vector(-120.5, 0, 0), App.Vector(0, 0, 1), 1.1),  # 1
    Part.Circle(App.Vector(-60.2, 104.4, 0), App.Vector(0, 0, 1), 1.1),  # 2
    Part.Circle(App.Vector(60.2, 104.4, 0), App.Vector(0, 0, 1), 1.1),  # 3
    Part.Circle(App.Vector(120.5, 0, 0), App.Vector(0, 0, 1), 1.1),  # 4
    Part.Circle(App.Vector(60.2, -104.4, 0), App.Vector(0, 0, 1), 1.1),  # 5
    Part.Circle(App.Vector(-136.4, 0, 0), App.Vector(0, 0, 1), 1.1),  # 6
    Part.Circle(App.Vector(-68.2, -118.1, 0), App.Vector(0, 0, 1), 1.1),  # 7
    Part.Circle(App.Vector(68.2, -118.1, 0), App.Vector(0, 0, 1), 1.1),  # 8
    Part.Circle(App.Vector(136.4, 0, 0), App.Vector(0, 0, 1), 1.1),  # 9
    Part.Circle(App.Vector(68.2, 118.1, 0), App.Vector(0, 0, 1), 1.1),  # 10
    Part.Circle(App.Vector(-68.2, 118.1, 0), App.Vector(0, 0, 1), 1.1),  # 11
    Part.Circle(App.Vector(-99.5, 57.5, 0), App.Vector(0, 0, 1), 1.1),  # 12
    Part.Circle(App.Vector(-99.5, -57.5, 0), App.Vector(0, 0, 1), 1.1),  # 13
    Part.Circle(App.Vector(0, -114.9, 0), App.Vector(0, 0, 1), 1.1),  # 14
    Part.Circle(App.Vector(99.5, -57.5, 0), App.Vector(0, 0, 1), 1.1),  # 15
    Part.Circle(App.Vector(99.5, 57.5, 0), App.Vector(0, 0, 1), 1.1),  # 16
    Part.Circle(App.Vector(0, 114.9, 0), App.Vector(0, 0, 1), 1.1),  # 17
], False)
sketch4.addConstraint([
    Sketcher.Constraint("Equal", 0, 1),
    Sketcher.Constraint("Equal", 1, 2),
    Sketcher.Constraint("Equal", 2, 3),
    Sketcher.Constraint("Equal", 3, 4),
    Sketcher.Constraint("Equal", 4, 6),
    Sketcher.Constraint("Equal", 6, 7),
    Sketcher.Constraint("Equal", 7, 8),
    Sketcher.Constraint("Equal", 8, 9),
    Sketcher.Constraint("Equal", 9, 10),
    Sketcher.Constraint("Equal", 10, 11),
    Sketcher.Constraint("Equal", 11, 12),
    Sketcher.Constraint("Equal", 12, 13),
    Sketcher.Constraint("Equal", 13, 14),
    Sketcher.Constraint("Equal", 14, 15),
    Sketcher.Constraint("Equal", 15, 16),
    Sketcher.Constraint("Equal", 16, 17),
    Sketcher.Constraint("Symmetric", 0, 3, 3, 3, -1, 1),
    Sketcher.Constraint("Symmetric", 1, 3, 4, 3, -1, 1),
    Sketcher.Constraint("Symmetric", 2, 3, 5, 3, -1, 1),
    Sketcher.Constraint("Symmetric", 6, 3, 9, 3, -1, 1),
    Sketcher.Constraint("Symmetric", 7, 3, 10, 3, -1, 1),
    Sketcher.Constraint("Symmetric", 8, 3, 11, 3, -1, 1),
    Sketcher.Constraint("Symmetric", 12, 3, 15, 3, -1, 1),
    Sketcher.Constraint("Symmetric", 13, 3, 16, 3, -1, 1),
    Sketcher.Constraint("Symmetric", 14, 3, 17, 3, -1, 1),
    Sketcher.Constraint("Symmetric", 2, 3, 3, 3, -2),
    Sketcher.Constraint("Symmetric", 7, 3, 8, 3, -2),
    Sketcher.Constraint("Symmetric", 13, 3, 15, 3, -2),
    Sketcher.Constraint("PointOnObject", 1, 3, -1),
    Sketcher.Constraint("PointOnObject", 6, 3, -1),
    Sketcher.Constraint("PointOnObject", 14, 3, -2),
    Sketcher.Constraint("Diameter", 5, Q("0.09 in")),
    Sketcher.Constraint("Diameter", 0, Q("0.085 in")),
    Sketcher.Constraint("DistanceY", 14, 3, -1, 1, Q("4.525 in")),
    Sketcher.Constraint("DistanceX", 6, 3, 1, 3, Q("0.625 in")),
    Sketcher.Constraint("DistanceX", 7, 3, 0, 3, Q("0.3125 in")),
    Sketcher.Constraint("DistanceY", 13, 3, 12, 3, Q("4.525 in")),
    Sketcher.Constraint("DistanceY", 0, 3, -1, 1, 104.355739),
    Sketcher.Constraint("DistanceY", 7, 3, -1, 1, 118.103892),
    Sketcher.Constraint("DistanceX", 12, 3, -1, 1, 99.53663),
    Sketcher.Constraint("DistanceX", 1, 3, 3, 3, 180.749441),
    Sketcher.Constraint("DistanceX", 0, 3, -1, 1, 60.249814),
])
sketch4.setExpression("Constraints[31]", "Params.sketch4_diameter")
sketch4.setExpression("Constraints[32]", "Params.sketch4_diameter2")
pocket3 = body.newObject("PartDesign::Pocket", "Pocket002")
pocket3.Profile = sketch4
pocket3.Type = "ThroughAll"
doc.recompute()

fillet = body.newObject("PartDesign::Fillet", "Fillet")
fillet.Base = (pocket3, edges_at(pocket3, [
    (-72.59, -1.587, 125.73),
    (72.59, -1.587, 125.73),
    (145.18, -1.587, 0),
    (72.59, -1.587, -125.73),
    (-72.59, -1.587, -125.73),
    (-145.18, -1.587, 0),
]))
fillet.setExpression("Radius", "Params.fillet_radius")

doc.recompute()
